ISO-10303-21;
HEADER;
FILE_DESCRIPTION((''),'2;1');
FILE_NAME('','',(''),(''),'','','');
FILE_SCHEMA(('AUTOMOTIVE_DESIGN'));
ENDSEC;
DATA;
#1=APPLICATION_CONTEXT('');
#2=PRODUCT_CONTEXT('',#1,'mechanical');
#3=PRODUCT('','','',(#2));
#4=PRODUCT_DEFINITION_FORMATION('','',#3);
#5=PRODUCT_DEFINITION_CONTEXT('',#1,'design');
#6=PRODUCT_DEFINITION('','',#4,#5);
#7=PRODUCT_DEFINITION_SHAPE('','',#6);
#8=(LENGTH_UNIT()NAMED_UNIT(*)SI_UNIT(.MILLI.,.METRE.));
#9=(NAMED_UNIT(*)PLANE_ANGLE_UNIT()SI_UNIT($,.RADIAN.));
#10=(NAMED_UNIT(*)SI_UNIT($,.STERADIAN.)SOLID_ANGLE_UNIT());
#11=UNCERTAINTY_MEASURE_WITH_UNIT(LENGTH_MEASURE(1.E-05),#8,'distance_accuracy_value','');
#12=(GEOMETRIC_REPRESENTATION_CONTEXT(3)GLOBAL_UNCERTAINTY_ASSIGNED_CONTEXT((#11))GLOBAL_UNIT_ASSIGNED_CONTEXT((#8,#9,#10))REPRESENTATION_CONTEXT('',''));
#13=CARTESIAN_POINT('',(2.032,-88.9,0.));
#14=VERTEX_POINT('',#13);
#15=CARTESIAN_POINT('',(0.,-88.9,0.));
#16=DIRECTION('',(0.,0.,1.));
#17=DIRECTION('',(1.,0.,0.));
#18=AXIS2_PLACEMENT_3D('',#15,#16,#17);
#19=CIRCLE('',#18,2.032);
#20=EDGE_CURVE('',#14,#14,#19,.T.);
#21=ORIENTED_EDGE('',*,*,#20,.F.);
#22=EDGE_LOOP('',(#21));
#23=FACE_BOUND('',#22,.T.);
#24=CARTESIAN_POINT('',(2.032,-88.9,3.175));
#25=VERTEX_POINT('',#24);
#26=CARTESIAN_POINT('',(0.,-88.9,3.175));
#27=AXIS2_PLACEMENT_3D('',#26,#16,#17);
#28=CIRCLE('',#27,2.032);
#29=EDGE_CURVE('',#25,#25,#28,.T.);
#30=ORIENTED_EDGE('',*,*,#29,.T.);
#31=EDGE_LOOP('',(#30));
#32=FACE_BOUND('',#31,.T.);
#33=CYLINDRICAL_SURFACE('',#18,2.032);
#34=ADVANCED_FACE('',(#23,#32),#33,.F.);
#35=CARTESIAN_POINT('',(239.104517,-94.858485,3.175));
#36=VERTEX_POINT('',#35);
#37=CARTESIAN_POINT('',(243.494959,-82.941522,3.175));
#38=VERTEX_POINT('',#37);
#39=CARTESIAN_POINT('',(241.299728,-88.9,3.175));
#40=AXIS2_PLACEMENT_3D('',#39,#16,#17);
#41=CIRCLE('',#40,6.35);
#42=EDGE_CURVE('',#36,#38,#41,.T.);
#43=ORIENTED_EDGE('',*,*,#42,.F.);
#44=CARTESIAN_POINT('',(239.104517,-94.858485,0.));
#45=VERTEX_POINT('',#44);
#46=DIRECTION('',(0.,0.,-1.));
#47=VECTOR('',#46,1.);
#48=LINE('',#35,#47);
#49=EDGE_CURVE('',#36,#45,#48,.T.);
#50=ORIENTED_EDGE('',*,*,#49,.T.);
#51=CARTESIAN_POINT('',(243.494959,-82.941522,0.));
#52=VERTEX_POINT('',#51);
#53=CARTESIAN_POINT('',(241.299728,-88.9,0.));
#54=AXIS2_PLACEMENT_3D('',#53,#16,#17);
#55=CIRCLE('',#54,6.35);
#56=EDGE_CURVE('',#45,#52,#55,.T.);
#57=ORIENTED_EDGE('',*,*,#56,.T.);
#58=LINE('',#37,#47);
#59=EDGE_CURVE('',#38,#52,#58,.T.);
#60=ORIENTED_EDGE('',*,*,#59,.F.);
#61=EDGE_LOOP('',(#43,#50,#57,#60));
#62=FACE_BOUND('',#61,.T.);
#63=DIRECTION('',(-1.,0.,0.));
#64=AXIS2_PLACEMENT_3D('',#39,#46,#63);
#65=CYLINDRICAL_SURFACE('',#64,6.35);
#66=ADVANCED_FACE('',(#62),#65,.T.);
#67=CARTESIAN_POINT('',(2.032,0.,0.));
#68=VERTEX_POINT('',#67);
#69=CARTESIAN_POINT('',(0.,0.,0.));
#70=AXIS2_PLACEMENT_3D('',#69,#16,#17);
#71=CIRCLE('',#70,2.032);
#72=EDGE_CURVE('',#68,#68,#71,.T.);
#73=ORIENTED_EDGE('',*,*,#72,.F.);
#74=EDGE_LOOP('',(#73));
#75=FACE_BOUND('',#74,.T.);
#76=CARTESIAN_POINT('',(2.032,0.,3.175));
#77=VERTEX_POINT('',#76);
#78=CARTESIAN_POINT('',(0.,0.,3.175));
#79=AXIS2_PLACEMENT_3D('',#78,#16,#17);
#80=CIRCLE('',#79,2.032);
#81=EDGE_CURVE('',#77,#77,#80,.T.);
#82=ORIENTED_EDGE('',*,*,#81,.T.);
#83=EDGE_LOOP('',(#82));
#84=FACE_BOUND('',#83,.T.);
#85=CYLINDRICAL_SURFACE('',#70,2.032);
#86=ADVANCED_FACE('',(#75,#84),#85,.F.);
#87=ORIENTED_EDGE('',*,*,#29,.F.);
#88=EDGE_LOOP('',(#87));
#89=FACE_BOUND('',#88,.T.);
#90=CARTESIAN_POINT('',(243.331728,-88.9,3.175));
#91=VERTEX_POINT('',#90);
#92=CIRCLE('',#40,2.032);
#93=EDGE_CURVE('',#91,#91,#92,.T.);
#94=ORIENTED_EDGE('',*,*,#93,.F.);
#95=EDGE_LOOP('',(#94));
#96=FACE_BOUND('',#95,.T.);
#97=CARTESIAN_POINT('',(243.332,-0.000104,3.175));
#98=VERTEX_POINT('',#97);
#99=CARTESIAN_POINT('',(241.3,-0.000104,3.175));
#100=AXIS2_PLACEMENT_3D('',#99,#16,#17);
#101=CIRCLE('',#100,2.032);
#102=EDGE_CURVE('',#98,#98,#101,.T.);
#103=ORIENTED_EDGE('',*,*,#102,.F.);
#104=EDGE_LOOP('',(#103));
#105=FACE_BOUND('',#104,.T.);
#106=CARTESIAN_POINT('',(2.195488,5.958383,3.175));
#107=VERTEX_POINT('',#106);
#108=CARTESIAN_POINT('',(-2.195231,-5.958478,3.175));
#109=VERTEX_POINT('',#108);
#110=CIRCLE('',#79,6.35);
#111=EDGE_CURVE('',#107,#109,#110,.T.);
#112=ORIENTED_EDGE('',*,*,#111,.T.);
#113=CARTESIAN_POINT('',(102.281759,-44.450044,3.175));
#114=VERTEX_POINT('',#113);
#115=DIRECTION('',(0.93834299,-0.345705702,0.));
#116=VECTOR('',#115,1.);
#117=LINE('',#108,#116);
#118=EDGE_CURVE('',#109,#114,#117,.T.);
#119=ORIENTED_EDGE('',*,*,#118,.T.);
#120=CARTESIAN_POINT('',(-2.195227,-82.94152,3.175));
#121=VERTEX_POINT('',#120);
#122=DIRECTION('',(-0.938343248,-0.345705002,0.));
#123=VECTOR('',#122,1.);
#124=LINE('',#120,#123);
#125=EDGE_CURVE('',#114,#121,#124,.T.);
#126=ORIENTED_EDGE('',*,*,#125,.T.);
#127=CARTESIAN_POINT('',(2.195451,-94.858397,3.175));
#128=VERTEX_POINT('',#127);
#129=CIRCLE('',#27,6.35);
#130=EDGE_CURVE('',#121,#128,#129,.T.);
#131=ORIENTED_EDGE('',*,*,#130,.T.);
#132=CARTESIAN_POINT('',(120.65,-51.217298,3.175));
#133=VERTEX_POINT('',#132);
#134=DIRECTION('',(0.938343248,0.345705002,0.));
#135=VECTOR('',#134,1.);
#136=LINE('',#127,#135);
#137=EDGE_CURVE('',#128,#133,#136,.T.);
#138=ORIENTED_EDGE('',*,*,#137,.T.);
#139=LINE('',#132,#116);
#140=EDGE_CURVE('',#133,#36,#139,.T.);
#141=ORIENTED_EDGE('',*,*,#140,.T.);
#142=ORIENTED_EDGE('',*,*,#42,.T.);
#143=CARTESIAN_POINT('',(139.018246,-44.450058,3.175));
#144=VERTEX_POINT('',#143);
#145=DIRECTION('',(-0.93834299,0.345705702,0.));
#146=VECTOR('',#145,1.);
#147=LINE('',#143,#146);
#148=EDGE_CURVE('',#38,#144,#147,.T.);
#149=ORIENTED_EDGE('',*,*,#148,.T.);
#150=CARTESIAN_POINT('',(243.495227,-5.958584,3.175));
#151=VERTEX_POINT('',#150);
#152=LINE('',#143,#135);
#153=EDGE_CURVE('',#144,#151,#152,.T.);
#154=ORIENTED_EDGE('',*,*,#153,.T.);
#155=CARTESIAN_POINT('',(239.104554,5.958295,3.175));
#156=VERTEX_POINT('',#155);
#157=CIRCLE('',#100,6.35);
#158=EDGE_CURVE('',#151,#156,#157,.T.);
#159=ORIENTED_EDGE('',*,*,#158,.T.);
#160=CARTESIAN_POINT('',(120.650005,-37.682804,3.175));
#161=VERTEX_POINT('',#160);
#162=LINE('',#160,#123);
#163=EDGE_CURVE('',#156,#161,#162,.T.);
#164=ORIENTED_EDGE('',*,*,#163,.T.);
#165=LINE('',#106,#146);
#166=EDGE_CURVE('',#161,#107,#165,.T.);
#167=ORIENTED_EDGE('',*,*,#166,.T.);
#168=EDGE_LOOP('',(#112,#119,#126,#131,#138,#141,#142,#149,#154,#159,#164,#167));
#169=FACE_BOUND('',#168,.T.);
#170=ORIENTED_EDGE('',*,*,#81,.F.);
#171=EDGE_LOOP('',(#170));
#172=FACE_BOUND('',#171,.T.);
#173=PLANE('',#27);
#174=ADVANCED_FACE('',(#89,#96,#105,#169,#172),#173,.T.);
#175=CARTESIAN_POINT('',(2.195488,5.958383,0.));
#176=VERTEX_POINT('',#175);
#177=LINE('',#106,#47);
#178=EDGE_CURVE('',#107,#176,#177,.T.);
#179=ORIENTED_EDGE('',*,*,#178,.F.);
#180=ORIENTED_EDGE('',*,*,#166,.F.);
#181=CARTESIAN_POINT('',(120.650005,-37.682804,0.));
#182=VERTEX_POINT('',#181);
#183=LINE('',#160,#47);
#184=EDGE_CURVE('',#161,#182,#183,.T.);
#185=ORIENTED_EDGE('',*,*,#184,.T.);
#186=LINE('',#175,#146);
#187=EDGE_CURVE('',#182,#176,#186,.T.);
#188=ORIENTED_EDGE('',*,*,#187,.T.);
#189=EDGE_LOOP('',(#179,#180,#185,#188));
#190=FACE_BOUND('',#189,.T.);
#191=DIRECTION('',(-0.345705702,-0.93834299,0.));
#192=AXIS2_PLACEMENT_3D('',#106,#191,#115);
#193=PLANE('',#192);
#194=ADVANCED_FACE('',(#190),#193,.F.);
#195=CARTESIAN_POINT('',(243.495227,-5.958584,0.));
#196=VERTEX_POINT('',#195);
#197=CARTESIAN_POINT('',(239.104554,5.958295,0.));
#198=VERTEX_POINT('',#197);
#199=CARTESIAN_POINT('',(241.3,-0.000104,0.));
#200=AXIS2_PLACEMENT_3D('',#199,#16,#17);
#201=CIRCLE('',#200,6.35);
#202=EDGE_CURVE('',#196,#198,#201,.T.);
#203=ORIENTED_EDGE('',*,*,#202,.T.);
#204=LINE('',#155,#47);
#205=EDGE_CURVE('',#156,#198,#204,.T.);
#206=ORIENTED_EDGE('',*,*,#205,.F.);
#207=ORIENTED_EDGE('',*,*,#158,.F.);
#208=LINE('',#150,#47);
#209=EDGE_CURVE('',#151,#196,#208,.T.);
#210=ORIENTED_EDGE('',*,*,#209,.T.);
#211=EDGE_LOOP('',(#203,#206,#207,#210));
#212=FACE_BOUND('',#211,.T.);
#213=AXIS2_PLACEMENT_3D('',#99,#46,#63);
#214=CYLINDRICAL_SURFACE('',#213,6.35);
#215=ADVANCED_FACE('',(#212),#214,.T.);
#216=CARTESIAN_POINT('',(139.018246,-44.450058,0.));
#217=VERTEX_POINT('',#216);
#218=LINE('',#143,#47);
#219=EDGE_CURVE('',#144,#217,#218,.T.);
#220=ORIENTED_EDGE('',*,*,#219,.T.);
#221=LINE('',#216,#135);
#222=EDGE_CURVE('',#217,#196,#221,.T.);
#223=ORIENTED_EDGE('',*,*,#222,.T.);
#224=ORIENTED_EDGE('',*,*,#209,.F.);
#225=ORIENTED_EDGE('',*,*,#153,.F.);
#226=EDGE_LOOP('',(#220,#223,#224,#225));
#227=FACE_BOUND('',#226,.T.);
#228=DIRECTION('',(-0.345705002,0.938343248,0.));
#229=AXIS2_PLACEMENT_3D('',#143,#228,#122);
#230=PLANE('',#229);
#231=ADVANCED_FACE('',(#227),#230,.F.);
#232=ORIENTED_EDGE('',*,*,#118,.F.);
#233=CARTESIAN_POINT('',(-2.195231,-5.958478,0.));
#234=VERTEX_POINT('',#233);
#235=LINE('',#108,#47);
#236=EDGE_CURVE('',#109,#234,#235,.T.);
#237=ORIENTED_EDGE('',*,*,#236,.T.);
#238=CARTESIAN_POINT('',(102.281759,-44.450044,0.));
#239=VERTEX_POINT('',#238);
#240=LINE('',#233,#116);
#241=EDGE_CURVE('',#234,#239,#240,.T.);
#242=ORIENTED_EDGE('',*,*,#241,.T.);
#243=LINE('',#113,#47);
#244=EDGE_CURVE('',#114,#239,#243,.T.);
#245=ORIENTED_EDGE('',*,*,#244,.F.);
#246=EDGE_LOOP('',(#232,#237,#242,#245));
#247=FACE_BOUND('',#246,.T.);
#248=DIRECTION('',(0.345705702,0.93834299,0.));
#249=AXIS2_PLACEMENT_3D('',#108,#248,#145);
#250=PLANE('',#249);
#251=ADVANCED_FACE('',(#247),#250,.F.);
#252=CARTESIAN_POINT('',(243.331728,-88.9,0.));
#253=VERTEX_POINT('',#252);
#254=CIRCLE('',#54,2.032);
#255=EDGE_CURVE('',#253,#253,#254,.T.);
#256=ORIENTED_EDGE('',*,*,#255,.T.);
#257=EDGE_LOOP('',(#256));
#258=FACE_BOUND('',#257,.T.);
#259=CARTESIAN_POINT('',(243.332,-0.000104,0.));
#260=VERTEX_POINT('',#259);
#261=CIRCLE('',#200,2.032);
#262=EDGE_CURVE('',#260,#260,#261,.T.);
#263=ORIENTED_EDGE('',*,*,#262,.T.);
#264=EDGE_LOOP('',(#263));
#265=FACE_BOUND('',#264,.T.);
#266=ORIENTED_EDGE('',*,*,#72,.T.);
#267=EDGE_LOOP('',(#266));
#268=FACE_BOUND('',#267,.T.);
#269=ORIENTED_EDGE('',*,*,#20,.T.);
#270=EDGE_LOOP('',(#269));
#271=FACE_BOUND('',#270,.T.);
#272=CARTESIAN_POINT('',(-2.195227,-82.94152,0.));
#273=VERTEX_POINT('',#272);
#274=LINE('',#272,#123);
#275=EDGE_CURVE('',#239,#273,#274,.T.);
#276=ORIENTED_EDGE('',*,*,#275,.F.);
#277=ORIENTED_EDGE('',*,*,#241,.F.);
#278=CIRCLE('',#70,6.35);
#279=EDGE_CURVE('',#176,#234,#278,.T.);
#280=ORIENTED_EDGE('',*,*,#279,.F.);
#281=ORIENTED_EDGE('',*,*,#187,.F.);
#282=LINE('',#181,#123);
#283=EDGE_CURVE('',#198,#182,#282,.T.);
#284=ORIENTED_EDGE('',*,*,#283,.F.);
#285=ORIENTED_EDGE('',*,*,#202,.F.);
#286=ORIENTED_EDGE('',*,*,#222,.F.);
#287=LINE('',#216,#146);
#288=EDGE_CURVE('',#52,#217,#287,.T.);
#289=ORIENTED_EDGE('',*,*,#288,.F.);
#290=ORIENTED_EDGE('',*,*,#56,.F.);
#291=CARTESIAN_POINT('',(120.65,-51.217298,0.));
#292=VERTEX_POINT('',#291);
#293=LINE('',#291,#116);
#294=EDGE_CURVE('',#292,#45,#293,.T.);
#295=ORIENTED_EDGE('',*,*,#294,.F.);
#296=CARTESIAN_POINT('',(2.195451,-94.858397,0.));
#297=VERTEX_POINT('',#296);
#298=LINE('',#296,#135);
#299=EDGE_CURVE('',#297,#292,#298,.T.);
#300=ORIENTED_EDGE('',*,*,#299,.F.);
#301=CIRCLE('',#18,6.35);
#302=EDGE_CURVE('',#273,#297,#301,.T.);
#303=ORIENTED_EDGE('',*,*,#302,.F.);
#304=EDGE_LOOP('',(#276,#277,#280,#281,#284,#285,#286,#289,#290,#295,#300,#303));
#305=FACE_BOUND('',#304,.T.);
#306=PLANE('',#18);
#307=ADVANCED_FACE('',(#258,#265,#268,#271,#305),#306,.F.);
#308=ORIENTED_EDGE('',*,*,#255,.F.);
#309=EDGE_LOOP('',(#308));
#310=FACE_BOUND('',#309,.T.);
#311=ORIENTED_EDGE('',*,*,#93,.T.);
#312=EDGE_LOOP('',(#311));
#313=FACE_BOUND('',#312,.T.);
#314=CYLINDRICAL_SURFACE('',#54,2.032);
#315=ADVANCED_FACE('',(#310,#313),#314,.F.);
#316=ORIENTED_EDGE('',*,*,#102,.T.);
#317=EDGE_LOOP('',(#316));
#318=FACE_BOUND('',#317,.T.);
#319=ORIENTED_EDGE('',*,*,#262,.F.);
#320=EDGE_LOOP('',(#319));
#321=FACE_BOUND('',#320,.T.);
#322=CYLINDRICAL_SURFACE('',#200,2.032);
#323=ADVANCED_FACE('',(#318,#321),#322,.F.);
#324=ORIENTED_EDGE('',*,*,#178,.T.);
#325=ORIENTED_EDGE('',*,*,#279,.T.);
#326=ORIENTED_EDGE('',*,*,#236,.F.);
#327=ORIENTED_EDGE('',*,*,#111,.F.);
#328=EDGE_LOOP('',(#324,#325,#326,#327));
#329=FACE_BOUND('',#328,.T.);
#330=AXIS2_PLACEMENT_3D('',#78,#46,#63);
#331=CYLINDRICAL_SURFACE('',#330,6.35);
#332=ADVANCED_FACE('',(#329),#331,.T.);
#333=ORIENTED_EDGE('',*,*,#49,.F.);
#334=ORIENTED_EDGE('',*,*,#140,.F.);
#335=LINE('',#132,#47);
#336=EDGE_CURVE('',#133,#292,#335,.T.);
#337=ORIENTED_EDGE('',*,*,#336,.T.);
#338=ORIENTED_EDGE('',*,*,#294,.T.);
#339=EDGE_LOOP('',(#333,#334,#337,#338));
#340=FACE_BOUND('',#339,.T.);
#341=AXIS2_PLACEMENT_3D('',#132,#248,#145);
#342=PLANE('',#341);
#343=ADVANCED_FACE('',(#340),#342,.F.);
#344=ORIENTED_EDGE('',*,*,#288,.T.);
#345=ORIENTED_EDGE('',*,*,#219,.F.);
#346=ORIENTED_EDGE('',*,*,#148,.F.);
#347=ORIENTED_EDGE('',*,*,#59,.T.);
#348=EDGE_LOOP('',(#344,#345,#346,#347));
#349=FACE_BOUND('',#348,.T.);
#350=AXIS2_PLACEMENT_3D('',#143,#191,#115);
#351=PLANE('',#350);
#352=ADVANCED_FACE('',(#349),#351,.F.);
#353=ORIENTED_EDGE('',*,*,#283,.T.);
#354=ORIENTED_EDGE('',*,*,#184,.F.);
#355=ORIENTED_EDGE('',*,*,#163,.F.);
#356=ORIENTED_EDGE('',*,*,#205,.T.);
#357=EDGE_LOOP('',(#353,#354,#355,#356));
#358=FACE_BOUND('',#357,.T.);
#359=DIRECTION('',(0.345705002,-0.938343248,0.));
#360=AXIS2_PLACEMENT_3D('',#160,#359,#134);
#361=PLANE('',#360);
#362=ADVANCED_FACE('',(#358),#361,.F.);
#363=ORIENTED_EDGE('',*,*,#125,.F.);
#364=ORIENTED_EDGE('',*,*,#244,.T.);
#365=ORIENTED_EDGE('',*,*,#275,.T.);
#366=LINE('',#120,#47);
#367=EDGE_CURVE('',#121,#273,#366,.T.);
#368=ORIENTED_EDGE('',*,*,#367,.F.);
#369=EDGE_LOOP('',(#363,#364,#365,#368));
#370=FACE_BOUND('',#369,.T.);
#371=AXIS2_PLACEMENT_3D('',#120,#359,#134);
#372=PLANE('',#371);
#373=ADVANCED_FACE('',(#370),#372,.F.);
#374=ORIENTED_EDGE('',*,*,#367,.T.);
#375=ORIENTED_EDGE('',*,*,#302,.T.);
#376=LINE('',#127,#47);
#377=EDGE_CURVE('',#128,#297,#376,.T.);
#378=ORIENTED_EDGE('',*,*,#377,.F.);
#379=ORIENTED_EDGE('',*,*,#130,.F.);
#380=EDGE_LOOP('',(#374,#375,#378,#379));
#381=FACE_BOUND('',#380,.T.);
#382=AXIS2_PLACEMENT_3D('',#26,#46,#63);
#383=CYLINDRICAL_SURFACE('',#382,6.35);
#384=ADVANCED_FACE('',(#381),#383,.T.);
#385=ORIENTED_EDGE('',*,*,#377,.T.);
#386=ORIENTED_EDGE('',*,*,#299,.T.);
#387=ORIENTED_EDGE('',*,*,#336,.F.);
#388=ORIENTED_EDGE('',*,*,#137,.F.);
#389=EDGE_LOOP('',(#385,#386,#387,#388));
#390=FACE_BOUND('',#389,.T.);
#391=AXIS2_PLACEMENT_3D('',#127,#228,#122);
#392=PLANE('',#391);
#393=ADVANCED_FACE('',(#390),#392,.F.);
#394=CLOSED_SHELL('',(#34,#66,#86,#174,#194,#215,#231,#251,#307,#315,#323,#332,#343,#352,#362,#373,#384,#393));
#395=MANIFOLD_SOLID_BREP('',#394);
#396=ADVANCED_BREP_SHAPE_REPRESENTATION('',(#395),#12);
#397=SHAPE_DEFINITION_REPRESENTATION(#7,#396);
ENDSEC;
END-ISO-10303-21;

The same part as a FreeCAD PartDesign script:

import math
import FreeCAD as App
import Part
import Sketcher
from FreeCAD import Vector
Q = App.Units.Quantity

doc = App.newDocument("Part")
params = doc.addObject("Spreadsheet::Sheet", "Params")
for row, (alias, value) in enumerate([
    ("sketch1_radius", "0.25 in"),
    ("sketch1_radius2", "0.25 in"),
    ("sketch1_radius3", "0.25 in"),
    ("sketch1_radius4", "0.25 in"),
    ("pad1_length", "0.125 in"),
    ("sketch2_diameter", "0.16 in"),
], start=1):
    params.set(f"A{row}", alias)
    params.set(f"B{row}", "=" + value)
    params.setAlias(f"B{row}", alias)

body = doc.addObject("PartDesign::Body", "Body")

sketch1 = body.newObject("Sketcher::SketchObject", "Sketch")
sketch1.AttachmentSupport = (doc.getObject("XY_Plane"), [""])
sketch1.MapMode = "FlatFace"
sketch1.addGeometry(Part.LineSegment(Vector(102.281759, -44.450044, 0), Vector(-2.195227, -82.94152, 0)), False)
sketch1.addGeometry(Part.ArcOfCircle(Part.Circle(Vector(0, -88.9, 0), Vector(0, 0, 1), 6.35), math.radians(110.224838), math.radians(290.226991)), False)
sketch1.addGeometry(Part.LineSegment(Vector(2.195451, -94.858397, 0), Vector(120.65, -51.217298, 0)), False)
sketch1.addGeometry(Part.LineSegment(Vector(120.65, -51.217298, 0), Vector(239.104517, -94.858485, 0)), False)
sketch1.addGeometry(Part.ArcOfCircle(Part.Circle(Vector(241.299728, -88.9, 0), Vector(0, 0, 1), 6.35), math.radians(-110.224685), math.radians(69.77512)), False)
sketch1.addGeometry(Part.LineSegment(Vector(243.494959, -82.941522, 0), Vector(139.018246, -44.450058, 0)), False)
sketch1.addGeometry(Part.LineSegment(Vector(139.018246, -44.450058, 0), Vector(243.495227, -5.958584, 0)), False)
sketch1.addGeometry(Part.ArcOfCircle(Part.Circle(Vector(241.3, -0.000104, 0), Vector(0, 0, 1), 6.35), math.radians(-69.775162), math.radians(110.226943)), False)
sketch1.addGeometry(Part.LineSegment(Vector(239.104554, 5.958295, 0), Vector(120.650005, -37.682804, 0)), False)
sketch1.addGeometry(Part.LineSegment(Vector(120.650005, -37.682804, 0), Vector(2.195488, 5.958383, 0)), False)
sketch1.addGeometry(Part.ArcOfCircle(Part.Circle(Vector(0, 0, 0), Vector(0, 0, 1), 6.35), math.radians(69.772647), math.radians(249.77512)), False)
sketch1.addGeometry(Part.LineSegment(Vector(-2.195231, -5.958478, 0), Vector(102.281759, -44.450044, 0)), False)
sketch1.addConstraint(Sketcher.Constraint("Coincident", 0, 2, 1, 1))
sketch1.addConstraint(Sketcher.Constraint("Coincident", 1, 2, 2, 1))
sketch1.addConstraint(Sketcher.Constraint("Coincident", 2, 2, 3, 1))
sketch1.addConstraint(Sketcher.Constraint("Coincident", 3, 2, 4, 1))
sketch1.addConstraint(Sketcher.Constraint("Coincident", 4, 2, 5, 1))
sketch1.addConstraint(Sketcher.Constraint("Coincident", 5, 2, 6, 1))
sketch1.addConstraint(Sketcher.Constraint("Coincident", 6, 2, 7, 1))
sketch1.addConstraint(Sketcher.Constraint("Coincident", 7, 2, 8, 1))
sketch1.addConstraint(Sketcher.Constraint("Coincident", 8, 2, 9, 1))
sketch1.addConstraint(Sketcher.Constraint("Coincident", 9, 2, 10, 1))
sketch1.addConstraint(Sketcher.Constraint("Coincident", 10, 2, 11, 1))
sketch1.addConstraint(Sketcher.Constraint("Coincident", 11, 2, 0, 1))
sketch1.addConstraint(Sketcher.Constraint("Coincident", 10, 3, -1, 1))
sketch1.addConstraint(Sketcher.Constraint("PointOnObject", 1, 3, -2))
sketch1.addConstraint(Sketcher.Constraint("Radius", 1, Q("0.25 in")))
sketch1.addConstraint(Sketcher.Constraint("Radius", 4, Q("0.25 in")))
sketch1.addConstraint(Sketcher.Constraint("Radius", 7, Q("0.25 in")))
sketch1.addConstraint(Sketcher.Constraint("Radius", 10, Q("0.25 in")))
sketch1.addConstraint(Sketcher.Constraint("DistanceY", 1, 3, -1, 1, Q("3.5 in")))
sketch1.addConstraint(Sketcher.Constraint("DistanceY", 4, 3, -1, 1, Q("3.5 in")))
sketch1.addConstraint(Sketcher.Constraint("DistanceX", -1, 1, 7, 3, Q("9.5 in")))
sketch1.addConstraint(Sketcher.Constraint("DistanceX", -1, 1, 2, 2, Q("4.75 in")))
sketch1.addConstraint(Sketcher.Constraint("DistanceX", -1, 1, 8, 2, Q("4.7500002 in")))
sketch1.addConstraint(Sketcher.Constraint("DistanceY", 2, 2, -1, 1, 51.217298))
sketch1.addConstraint(Sketcher.Constraint("DistanceY", 1, 2, 2, 2, 43.641099))
sketch1.addConstraint(Sketcher.Constraint("DistanceX", 4, 3, 6, 2, 2.195499))
sketch1.addConstraint(Sketcher.Constraint("DistanceY", 3, 2, 6, 2, 88.899902))
sketch1.addConstraint(Sketcher.Constraint("DistanceY", 7, 3, 7, 2, 5.958399))
sketch1.addConstraint(Sketcher.Constraint("DistanceY", 8, 2, 7, 2, 43.641099))
sketch1.addConstraint(Sketcher.Constraint("Distance", 0, 111.34197))
sketch1.addConstraint(Sketcher.Constraint("Distance", 5, 111.34171))
sketch1.addConstraint(Sketcher.Constraint("DistanceY", 0, 2, -1, 1, 82.94152))
sketch1.addConstraint(Sketcher.Constraint("DistanceX", -1, 1, 4, 2, 243.494959))
sketch1.addConstraint(Sketcher.Constraint("DistanceX", -1, 1, 9, 2, 2.195488))
sketch1.addConstraint(Sketcher.Constraint("DistanceX", 10, 2, -1, 1, 2.195231))
sketch1.addConstraint(Sketcher.Constraint("DistanceX", -1, 1, 11, 2, 102.281759))
sketch1.addConstraint(Sketcher.Constraint("DistanceX", 3, 2, 4, 3, 2.195211))
sketch1.addConstraint(Sketcher.Constraint("DistanceY", 3, 2, 7, 3, 94.858381))
sketch1.addConstraint(Sketcher.Constraint("DistanceY", 2, 2, 5, 2, 6.767241))
sketch1.setExpression("Constraints[14]", "Params.sketch1_radius")
sketch1.setExpression("Constraints[15]", "Params.sketch1_radius2")
sketch1.setExpression("Constraints[16]", "Params.sketch1_radius3")
sketch1.setExpression("Constraints[17]", "Params.sketch1_radius4")
pad1 = body.newObject("PartDesign::Pad", "Pad")
pad1.Profile = sketch1
pad1.setExpression("Length", "Params.pad1_length")

sketch2 = body.newObject("Sketcher::SketchObject", "Sketch001")
sketch2.AttachmentSupport = (doc.getObject("XY_Plane"), [""])
sketch2.MapMode = "FlatFace"
sketch2.AttachmentOffset = App.Placement(Vector(0, 0, 0.125 * 25.4), App.Rotation())
sketch2.addGeometry(Part.Circle(Vector(0, 0, 0), Vector(0, 0, 1), 2), False)
sketch2.addGeometry(Part.Circle(Vector(0, -88.9, 0), Vector(0, 0, 1), 2), False)
sketch2.addGeometry(Part.Circle(Vector(241.3, -88.9, 0), Vector(0, 0, 1), 2), False)
sketch2.addGeometry(Part.Circle(Vector(241.3, 0, 0), Vector(0, 0, 1), 2), False)
sketch2.addConstraint(Sketcher.Constraint("Coincident", 0, 3, -1, 1))
sketch2.addConstraint(Sketcher.Constraint("Equal", 0, 1))
sketch2.addConstraint(Sketcher.Constraint("Equal", 1, 2))
sketch2.addConstraint(Sketcher.Constraint("Equal", 2, 3))
sketch2.addConstraint(Sketcher.Constraint("PointOnObject", 1, 3, -2))
sketch2.addConstraint(Sketcher.Constraint("Horizontal", 1, 3, 2, 3))
sketch2.addConstraint(Sketcher.Constraint("Diameter", 0, Q("0.16 in")))
sketch2.addConstraint(Sketcher.Constraint("DistanceY", 1, 3, -1, 1, Q("3.5 in")))
sketch2.addConstraint(Sketcher.Constraint("DistanceX", -1, 1, 3, 3, Q("9.5 in")))
sketch2.addConstraint(Sketcher.Constraint("DistanceX", -1, 1, 2, 3, 241.299728))
sketch2.addConstraint(Sketcher.Constraint("DistanceY", 3, 3, -1, 1, 0.000104))
sketch2.setExpression("Constraints[6]", "Params.sketch2_diameter")
pocket1 = body.newObject("PartDesign::Pocket", "Pocket")
pocket1.Profile = sketch2
pocket1.Type = "ThroughAll"

doc.recompute()
